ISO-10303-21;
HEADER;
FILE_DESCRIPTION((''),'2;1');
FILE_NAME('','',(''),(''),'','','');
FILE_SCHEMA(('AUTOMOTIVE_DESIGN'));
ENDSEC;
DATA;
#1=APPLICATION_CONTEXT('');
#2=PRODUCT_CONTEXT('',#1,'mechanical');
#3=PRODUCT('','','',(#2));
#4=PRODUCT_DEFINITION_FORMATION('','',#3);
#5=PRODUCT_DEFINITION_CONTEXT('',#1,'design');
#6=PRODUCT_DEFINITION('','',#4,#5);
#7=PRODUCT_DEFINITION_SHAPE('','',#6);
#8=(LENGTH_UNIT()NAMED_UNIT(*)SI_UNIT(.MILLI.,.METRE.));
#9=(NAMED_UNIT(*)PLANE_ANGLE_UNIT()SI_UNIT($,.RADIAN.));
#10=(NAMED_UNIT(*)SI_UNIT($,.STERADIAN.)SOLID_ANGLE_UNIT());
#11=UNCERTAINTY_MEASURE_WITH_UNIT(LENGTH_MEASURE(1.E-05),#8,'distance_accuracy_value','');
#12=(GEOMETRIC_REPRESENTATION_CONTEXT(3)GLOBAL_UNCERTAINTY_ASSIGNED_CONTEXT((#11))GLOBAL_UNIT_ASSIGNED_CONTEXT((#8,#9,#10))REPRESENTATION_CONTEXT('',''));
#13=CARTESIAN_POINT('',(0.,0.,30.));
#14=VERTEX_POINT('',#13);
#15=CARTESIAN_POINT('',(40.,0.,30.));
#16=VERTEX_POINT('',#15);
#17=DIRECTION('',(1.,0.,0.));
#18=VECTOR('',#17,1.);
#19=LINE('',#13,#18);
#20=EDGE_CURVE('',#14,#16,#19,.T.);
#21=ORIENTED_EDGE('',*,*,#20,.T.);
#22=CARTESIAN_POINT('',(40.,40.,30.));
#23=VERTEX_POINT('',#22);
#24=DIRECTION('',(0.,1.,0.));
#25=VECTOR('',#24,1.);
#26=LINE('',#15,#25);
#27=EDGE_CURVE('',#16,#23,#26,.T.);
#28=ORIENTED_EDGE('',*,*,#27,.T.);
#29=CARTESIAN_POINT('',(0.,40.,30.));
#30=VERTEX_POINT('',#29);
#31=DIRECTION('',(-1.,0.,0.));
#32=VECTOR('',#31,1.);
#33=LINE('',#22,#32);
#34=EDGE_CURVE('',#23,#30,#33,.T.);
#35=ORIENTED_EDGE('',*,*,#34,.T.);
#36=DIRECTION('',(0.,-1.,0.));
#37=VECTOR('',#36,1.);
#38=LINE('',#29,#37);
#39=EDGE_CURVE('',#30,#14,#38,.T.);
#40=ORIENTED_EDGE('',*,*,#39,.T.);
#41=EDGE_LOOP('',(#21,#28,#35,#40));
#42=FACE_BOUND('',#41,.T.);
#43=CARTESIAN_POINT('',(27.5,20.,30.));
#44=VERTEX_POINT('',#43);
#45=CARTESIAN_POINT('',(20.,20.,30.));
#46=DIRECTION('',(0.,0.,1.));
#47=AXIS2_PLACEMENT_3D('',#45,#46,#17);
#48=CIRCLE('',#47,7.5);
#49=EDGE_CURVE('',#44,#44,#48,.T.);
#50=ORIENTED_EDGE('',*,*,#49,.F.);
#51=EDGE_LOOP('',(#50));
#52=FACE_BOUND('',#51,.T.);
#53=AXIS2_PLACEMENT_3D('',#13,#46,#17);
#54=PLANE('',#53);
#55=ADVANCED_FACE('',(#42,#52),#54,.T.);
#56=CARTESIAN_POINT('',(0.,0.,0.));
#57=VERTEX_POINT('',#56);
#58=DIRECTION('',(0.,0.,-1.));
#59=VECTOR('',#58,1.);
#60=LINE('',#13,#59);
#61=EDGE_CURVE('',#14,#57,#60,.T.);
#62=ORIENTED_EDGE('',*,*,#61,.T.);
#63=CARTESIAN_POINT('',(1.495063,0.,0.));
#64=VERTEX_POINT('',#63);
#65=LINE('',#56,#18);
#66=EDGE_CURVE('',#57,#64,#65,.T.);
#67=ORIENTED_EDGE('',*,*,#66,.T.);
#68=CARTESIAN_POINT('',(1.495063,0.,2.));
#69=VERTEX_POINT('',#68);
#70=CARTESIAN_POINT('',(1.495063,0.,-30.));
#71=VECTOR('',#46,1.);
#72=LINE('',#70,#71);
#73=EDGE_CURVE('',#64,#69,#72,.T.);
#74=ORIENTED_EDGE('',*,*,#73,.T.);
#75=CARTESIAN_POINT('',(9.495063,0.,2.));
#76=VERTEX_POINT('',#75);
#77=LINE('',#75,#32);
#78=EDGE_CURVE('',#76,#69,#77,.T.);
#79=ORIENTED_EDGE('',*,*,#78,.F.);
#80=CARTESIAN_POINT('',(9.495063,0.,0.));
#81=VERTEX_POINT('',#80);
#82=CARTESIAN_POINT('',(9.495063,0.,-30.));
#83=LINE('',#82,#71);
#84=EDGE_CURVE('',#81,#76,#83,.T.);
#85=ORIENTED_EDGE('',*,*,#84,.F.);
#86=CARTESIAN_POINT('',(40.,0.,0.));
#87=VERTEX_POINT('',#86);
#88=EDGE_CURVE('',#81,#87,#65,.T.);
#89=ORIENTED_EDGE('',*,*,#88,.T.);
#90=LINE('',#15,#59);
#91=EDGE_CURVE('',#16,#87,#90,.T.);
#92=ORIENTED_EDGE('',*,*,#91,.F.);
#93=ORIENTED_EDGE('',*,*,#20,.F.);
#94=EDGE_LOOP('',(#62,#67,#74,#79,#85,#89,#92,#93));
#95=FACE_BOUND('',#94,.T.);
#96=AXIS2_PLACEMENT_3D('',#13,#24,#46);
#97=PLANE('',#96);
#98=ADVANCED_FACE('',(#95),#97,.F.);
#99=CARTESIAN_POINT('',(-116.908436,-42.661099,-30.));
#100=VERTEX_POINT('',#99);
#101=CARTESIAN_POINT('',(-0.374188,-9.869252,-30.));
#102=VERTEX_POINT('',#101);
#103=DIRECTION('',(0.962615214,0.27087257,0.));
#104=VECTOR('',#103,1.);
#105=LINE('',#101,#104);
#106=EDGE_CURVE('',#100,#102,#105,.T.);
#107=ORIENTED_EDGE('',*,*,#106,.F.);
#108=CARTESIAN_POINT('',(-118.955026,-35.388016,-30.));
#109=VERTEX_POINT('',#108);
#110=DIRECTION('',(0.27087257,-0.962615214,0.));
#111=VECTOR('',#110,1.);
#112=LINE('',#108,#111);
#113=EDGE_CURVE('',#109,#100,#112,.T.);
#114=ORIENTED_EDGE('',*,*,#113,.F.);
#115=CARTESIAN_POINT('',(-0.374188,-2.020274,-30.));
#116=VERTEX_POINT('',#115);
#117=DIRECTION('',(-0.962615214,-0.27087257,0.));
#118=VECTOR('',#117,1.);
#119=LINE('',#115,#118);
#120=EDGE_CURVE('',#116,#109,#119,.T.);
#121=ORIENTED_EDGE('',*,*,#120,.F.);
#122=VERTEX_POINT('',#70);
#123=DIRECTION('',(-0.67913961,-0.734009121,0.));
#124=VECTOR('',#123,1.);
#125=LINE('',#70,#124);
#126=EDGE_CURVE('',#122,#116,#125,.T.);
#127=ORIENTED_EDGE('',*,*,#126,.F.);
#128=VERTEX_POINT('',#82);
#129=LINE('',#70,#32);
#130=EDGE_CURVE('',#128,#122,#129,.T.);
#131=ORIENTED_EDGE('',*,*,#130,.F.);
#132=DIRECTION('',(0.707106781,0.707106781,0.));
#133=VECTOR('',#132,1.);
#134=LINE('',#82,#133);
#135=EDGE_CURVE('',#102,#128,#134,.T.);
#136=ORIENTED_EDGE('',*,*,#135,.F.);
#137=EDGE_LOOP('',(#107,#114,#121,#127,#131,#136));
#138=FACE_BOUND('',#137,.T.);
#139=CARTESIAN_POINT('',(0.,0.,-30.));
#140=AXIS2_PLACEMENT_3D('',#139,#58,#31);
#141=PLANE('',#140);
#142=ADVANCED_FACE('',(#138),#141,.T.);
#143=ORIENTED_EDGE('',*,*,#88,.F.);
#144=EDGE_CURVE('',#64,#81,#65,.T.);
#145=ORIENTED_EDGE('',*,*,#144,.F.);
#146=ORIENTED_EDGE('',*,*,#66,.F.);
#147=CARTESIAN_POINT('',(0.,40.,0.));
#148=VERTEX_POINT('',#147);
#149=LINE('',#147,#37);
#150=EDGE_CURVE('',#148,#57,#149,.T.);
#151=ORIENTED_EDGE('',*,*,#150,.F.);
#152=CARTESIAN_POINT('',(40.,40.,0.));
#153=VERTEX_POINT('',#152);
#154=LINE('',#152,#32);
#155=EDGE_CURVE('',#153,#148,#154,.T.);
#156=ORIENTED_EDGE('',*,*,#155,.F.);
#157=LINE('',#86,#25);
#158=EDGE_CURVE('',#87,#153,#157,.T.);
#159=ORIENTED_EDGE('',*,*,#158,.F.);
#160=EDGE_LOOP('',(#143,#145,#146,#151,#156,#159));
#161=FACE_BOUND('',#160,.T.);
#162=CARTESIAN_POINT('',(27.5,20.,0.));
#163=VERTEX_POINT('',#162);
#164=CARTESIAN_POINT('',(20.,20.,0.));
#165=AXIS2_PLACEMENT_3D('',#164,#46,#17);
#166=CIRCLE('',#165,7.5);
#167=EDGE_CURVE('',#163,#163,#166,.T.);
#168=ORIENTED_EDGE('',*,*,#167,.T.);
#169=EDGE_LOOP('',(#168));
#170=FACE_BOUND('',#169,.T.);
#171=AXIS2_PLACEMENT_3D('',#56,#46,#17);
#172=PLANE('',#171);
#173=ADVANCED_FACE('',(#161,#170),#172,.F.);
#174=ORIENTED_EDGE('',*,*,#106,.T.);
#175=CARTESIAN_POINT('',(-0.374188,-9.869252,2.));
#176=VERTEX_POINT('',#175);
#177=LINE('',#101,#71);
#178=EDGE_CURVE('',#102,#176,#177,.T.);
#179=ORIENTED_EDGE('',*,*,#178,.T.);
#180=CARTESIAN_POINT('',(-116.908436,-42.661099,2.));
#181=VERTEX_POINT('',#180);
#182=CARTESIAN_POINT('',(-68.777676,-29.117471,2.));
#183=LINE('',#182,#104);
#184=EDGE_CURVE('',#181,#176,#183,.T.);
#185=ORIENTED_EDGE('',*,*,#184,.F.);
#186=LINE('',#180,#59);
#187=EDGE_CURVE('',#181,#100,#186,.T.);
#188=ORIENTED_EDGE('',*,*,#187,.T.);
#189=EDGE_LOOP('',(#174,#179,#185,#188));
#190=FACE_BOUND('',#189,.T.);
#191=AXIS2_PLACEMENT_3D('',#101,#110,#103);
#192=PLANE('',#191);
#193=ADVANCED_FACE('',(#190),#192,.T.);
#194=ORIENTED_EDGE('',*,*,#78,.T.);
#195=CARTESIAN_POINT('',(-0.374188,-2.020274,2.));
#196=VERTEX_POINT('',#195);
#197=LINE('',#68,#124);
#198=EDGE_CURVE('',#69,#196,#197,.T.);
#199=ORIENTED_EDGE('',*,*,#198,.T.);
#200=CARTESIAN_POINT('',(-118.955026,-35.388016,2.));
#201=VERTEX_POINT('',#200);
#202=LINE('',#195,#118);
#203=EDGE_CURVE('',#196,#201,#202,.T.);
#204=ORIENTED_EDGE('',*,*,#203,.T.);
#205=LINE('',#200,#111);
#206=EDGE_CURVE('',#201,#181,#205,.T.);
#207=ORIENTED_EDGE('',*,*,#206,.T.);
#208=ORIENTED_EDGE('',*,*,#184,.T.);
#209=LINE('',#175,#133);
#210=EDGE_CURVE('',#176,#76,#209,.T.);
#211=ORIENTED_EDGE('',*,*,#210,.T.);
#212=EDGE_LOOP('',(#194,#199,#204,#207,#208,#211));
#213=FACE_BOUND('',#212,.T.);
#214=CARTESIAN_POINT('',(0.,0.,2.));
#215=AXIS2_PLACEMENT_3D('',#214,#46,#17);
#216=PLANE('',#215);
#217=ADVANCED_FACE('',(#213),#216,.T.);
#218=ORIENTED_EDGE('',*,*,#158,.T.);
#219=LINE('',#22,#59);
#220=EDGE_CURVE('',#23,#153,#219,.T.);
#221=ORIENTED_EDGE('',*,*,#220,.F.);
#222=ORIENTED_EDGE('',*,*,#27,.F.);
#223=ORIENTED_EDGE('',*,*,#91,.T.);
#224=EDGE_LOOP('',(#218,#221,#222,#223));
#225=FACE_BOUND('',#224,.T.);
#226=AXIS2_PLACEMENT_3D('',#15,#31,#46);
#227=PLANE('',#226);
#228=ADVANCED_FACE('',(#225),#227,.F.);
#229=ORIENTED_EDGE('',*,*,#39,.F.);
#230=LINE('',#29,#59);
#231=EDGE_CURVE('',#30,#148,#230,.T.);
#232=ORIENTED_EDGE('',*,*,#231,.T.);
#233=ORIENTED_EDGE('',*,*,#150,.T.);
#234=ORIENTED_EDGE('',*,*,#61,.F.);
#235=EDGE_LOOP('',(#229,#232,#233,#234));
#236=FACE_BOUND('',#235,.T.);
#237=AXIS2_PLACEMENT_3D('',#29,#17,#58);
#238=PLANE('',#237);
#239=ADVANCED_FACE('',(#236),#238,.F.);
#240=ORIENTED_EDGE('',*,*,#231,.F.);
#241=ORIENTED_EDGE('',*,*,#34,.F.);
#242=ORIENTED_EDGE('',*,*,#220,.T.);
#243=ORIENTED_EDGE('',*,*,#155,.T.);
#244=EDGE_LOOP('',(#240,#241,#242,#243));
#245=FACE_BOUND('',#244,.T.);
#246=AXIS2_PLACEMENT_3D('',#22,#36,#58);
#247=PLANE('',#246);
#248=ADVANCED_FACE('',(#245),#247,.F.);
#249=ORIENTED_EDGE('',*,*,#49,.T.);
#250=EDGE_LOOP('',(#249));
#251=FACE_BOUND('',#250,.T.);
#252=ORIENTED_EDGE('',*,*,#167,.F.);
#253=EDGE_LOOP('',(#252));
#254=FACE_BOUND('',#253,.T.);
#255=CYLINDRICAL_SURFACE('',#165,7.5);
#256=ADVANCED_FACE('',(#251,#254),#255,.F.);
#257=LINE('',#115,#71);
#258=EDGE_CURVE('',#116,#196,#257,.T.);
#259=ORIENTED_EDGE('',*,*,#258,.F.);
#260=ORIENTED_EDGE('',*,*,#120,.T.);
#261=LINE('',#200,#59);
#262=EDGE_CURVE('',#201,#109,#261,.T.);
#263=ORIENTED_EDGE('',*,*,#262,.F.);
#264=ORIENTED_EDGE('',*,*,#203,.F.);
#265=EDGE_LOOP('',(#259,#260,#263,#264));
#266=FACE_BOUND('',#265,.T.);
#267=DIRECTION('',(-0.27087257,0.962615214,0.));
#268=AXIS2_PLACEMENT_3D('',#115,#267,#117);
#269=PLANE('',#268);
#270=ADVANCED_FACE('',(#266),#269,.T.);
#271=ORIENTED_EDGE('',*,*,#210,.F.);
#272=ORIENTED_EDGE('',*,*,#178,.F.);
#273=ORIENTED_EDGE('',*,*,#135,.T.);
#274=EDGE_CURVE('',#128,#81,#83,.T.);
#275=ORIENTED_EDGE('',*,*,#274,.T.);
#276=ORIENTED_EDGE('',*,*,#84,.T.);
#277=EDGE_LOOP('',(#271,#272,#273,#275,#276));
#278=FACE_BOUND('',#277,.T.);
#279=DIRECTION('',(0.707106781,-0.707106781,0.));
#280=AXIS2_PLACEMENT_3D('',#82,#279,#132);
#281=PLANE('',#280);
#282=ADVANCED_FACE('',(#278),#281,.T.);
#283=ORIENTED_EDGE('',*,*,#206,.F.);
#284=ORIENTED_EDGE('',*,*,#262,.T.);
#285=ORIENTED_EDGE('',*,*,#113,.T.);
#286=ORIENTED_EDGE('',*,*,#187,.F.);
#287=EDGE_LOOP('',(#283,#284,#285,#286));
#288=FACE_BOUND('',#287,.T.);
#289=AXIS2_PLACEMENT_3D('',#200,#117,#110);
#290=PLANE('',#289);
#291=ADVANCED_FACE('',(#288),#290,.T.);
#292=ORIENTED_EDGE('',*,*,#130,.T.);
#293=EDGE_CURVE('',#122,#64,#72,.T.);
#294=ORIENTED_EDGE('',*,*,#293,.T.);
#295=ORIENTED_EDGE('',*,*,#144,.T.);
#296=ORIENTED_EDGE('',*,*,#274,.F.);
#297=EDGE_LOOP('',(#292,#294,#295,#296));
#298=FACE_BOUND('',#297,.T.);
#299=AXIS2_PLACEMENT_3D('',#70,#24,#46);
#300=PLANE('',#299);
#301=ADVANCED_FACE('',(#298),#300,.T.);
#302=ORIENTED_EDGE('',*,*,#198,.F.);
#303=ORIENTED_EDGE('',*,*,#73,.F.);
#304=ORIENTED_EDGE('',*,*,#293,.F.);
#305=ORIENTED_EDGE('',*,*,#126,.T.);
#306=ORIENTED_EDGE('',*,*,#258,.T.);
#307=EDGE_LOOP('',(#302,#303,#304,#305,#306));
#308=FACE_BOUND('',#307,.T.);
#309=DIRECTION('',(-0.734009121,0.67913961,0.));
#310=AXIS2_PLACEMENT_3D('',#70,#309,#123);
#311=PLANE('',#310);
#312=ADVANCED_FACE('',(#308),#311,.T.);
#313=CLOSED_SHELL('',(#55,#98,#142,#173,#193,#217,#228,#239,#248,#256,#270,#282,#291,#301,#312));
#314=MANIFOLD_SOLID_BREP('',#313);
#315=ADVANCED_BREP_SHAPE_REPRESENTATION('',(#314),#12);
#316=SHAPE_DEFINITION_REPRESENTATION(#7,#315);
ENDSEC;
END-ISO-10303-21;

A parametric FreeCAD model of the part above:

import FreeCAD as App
import Part
import Sketcher
Q = App.Units.Quantity


def add_polygon(sketch, points):
    """Adds a closed chain of lines whose ends are joined by coincident constraints."""
    first, n = sketch.GeometryCount, len(points)
    for a, b in zip(points, points[1:] + points[:1]):
        sketch.addGeometry(Part.LineSegment(App.Vector(*a, 0), App.Vector(*b, 0)), False)
    for i in range(n):
        sketch.addConstraint(Sketcher.Constraint("Coincident", first + i, 2, first + (i + 1) % n, 1))

doc = App.newDocument("Part")
body = doc.addObject("PartDesign::Body", "Body")

# Sketch on XY plane
sketch1 = body.newObject("Sketcher::SketchObject", "Sketch")
sketch1.AttachmentSupport = (doc.getObject("XY_Plane"), [""])
sketch1.MapMode = "FlatFace"
add_polygon(sketch1, [(0, 40), (0, 0), (40, 0), (40, 40)])  # lines 0-3
sketch1.addConstraint([
    Sketcher.Constraint("Vertical", 0),
    Sketcher.Constraint("Horizontal", 1),
    Sketcher.Constraint("Vertical", 2),
    Sketcher.Constraint("Horizontal", 3),
    Sketcher.Constraint("Coincident", 0, 2, -1, 1),
    Sketcher.Constraint("Equal", 3, 0),
    Sketcher.Constraint("DistanceX", 1, 1, 1, 2, 40.0),
])
pad1 = body.newObject("PartDesign::Pad", "Pad")
pad1.Profile = sketch1
pad1.Length = 30

# Sketch on XY plane
sketch2 = body.newObject("Sketcher::SketchObject", "Sketch001")
sketch2.AttachmentSupport = (doc.getObject("XY_Plane"), [""])
sketch2.MapMode = "FlatFace"
sketch2.AttachmentOffset = App.Placement(App.Vector(0, 0, 30), App.Rotation())
sketch2.addGeometry(Part.Circle(App.Vector(20, 20, 0), App.Vector(0, 0, 1), 8), False)
sketch2.addConstraint([
    Sketcher.Constraint("Diameter", 0, 15.0),
    Sketcher.Constraint("DistanceX", -1, 1, 0, 3, 20.0),
    Sketcher.Constraint("DistanceY", -1, 1, 0, 3, 20.0),
])
pocket1 = body.newObject("PartDesign::Pocket", "Pocket")
pocket1.Profile = sketch2
pocket1.Length = 30

# Sketch on XY plane
sketch3 = body.newObject("Sketcher::SketchObject", "Sketch002")
sketch3.AttachmentSupport = (doc.getObject("XY_Plane"), [""])
sketch3.MapMode = "FlatFace"
sketch3.AttachmentOffset = App.Placement(App.Vector(0, 0, 30), App.Rotation())
add_polygon(sketch3, [(9.5, 0), (1.5, 0), (-0.4, -2), (-70.8, -21.8), (-68.8, -29.1), (-0.4, -9.9)])  # lines 0-5
sketch3.addConstraint([
    Sketcher.Constraint("Horizontal", 0),
    Sketcher.Constraint("PointOnObject", 0, 2, -1),
    Sketcher.Constraint("Perpendicular", 2, 3),
    Sketcher.Constraint("Perpendicular", 3, 4),
    Sketcher.Constraint("Vertical", 1, 2, 4, 2),
    Sketcher.Constraint("DistanceX", 0, 2, 0, 1, 8.0),
    Sketcher.Constraint("Angle", 5, Q("45 deg")),
    Sketcher.Constraint("Distance", 5, 13.95723),
    Sketcher.Constraint("DistanceX", 1, 2, -1, 1, 0.374188),
    Sketcher.Constraint("DistanceY", 3, 2, -1, 1, 29.117471),
    Sketcher.Constraint("DistanceX", 2, 2, 0, 2, 72.319329),
    Sketcher.Constraint("DistanceX", 2, 2, 3, 2, 2.04659),
])
pad2 = body.newObject("PartDesign::Pad", "Pad001")
pad2.Profile = sketch3
pad2.Length = 60
pad2.Reversed = True

# Sketch on XY plane
sketch4 = body.newObject("Sketcher::SketchObject", "Sketch003")
sketch4.AttachmentSupport = (doc.getObject("XY_Plane"), [""])
sketch4.MapMode = "FlatFace"
sketch4.AttachmentOffset = App.Placement(App.Vector(0, 0, 30), App.Rotation())
add_polygon(sketch4, [(-70.8, -21.8), (-68.8, -29.1), (-0.4, -9.9), (9.5, 0), (1.5, 0), (-0.4, -2)])  # lines 0-5
sketch4.addConstraint([
    Sketcher.Constraint("Horizontal", 3),
    Sketcher.Constraint("PointOnObject", 2, 2, -1),
    Sketcher.Constraint("Perpendicular", 0, 1),
    Sketcher.Constraint("Parallel", 1, 5),
    Sketcher.Constraint("Vertical", 1, 2, 4, 2),
    Sketcher.Constraint("DistanceX", 3, 2, 3, 1, 8.0),
    Sketcher.Constraint("Angle", 2, Q("45 deg")),
    Sketcher.Constraint("Distance", 2, 13.95723),
    Sketcher.Constraint("DistanceY", 0, 2, -1, 1, 29.117471),
    Sketcher.Constraint("DistanceX", 1, 2, -1, 1, 0.374188),
    Sketcher.Constraint("DistanceX", 0, 2, 2, 2, 78.272739),
    Sketcher.Constraint("DistanceY", 1, 2, 4, 2, 7.848978),
])
pocket2 = body.newObject("PartDesign::Pocket", "Pocket001")
pocket2.Profile = sketch4
pocket2.Length = 28

# Sketch on an angled plane
sketch5 = body.newObject("Sketcher::SketchObject", "Sketch004")
sketch5.Placement = App.Placement(App.Vector(2.545914, -9.047557, 0), App.Rotation(App.Vector(0.962615214, 0.27087257, 0), App.Vector(0, 0, 0.999999999), App.Vector(0.27087257, -0.962615214, 0), "ZXY"))
add_polygon(sketch5, [(-104, 2), (-104, -30), (-74, -30), (-74, 2)])  # lines 0-3
sketch5.addConstraint([
    Sketcher.Constraint("Vertical", 0),
    Sketcher.Constraint("Horizontal", 1),
    Sketcher.Constraint("Vertical", 2),
    Sketcher.Constraint("Horizontal", 3),
    Sketcher.Constraint("DistanceX", 1, 1, 1, 2, 30.0),
    Sketcher.Constraint("DistanceY", 0, 2, 0, 1, 32.0),
    Sketcher.Constraint("DistanceY", 0, 2, -1, 1, 30.0),
    Sketcher.Constraint("DistanceX", 0, 2, -1, 1, 104.093561),
])
pad3 = body.newObject("PartDesign::Pad", "Pad002")
pad3.Profile = sketch5
pad3.Length = 7.555544
pad3.Reversed = True

# Sketch on an angled plane
sketch6 = body.newObject("Sketcher::SketchObject", "Sketch005")
sketch6.Placement = App.Placement(App.Vector(2.545914, -9.047557, 0), App.Rotation(App.Vector(0.962615214, 0.27087257, 0), App.Vector(0, 0, 0.999999999), App.Vector(0.27087257, -0.962615214, 0), "ZXY"))
add_polygon(sketch6, [(-124, 2), (-124, -30), (-104, -30), (-104, 2)])  # lines 0-3
sketch6.addConstraint([
    Sketcher.Constraint("Vertical", 0),
    Sketcher.Constraint("Horizontal", 1),
    Sketcher.Constraint("Vertical", 2),
    Sketcher.Constraint("Horizontal", 3),
    Sketcher.Constraint("DistanceX", 1, 1, 1, 2, 20.0),
    Sketcher.Constraint("DistanceY", 0, 2, 0, 1, 32.0),
    Sketcher.Constraint("DistanceY", 0, 2, -1, 1, 30.0),
    Sketcher.Constraint("DistanceX", 0, 2, -1, 1, 124.093561),
])
pad4 = body.newObject("PartDesign::Pad", "Pad003")
pad4.Profile = sketch6
pad4.Length = 7.555546
pad4.Reversed = True

doc.recompute()
